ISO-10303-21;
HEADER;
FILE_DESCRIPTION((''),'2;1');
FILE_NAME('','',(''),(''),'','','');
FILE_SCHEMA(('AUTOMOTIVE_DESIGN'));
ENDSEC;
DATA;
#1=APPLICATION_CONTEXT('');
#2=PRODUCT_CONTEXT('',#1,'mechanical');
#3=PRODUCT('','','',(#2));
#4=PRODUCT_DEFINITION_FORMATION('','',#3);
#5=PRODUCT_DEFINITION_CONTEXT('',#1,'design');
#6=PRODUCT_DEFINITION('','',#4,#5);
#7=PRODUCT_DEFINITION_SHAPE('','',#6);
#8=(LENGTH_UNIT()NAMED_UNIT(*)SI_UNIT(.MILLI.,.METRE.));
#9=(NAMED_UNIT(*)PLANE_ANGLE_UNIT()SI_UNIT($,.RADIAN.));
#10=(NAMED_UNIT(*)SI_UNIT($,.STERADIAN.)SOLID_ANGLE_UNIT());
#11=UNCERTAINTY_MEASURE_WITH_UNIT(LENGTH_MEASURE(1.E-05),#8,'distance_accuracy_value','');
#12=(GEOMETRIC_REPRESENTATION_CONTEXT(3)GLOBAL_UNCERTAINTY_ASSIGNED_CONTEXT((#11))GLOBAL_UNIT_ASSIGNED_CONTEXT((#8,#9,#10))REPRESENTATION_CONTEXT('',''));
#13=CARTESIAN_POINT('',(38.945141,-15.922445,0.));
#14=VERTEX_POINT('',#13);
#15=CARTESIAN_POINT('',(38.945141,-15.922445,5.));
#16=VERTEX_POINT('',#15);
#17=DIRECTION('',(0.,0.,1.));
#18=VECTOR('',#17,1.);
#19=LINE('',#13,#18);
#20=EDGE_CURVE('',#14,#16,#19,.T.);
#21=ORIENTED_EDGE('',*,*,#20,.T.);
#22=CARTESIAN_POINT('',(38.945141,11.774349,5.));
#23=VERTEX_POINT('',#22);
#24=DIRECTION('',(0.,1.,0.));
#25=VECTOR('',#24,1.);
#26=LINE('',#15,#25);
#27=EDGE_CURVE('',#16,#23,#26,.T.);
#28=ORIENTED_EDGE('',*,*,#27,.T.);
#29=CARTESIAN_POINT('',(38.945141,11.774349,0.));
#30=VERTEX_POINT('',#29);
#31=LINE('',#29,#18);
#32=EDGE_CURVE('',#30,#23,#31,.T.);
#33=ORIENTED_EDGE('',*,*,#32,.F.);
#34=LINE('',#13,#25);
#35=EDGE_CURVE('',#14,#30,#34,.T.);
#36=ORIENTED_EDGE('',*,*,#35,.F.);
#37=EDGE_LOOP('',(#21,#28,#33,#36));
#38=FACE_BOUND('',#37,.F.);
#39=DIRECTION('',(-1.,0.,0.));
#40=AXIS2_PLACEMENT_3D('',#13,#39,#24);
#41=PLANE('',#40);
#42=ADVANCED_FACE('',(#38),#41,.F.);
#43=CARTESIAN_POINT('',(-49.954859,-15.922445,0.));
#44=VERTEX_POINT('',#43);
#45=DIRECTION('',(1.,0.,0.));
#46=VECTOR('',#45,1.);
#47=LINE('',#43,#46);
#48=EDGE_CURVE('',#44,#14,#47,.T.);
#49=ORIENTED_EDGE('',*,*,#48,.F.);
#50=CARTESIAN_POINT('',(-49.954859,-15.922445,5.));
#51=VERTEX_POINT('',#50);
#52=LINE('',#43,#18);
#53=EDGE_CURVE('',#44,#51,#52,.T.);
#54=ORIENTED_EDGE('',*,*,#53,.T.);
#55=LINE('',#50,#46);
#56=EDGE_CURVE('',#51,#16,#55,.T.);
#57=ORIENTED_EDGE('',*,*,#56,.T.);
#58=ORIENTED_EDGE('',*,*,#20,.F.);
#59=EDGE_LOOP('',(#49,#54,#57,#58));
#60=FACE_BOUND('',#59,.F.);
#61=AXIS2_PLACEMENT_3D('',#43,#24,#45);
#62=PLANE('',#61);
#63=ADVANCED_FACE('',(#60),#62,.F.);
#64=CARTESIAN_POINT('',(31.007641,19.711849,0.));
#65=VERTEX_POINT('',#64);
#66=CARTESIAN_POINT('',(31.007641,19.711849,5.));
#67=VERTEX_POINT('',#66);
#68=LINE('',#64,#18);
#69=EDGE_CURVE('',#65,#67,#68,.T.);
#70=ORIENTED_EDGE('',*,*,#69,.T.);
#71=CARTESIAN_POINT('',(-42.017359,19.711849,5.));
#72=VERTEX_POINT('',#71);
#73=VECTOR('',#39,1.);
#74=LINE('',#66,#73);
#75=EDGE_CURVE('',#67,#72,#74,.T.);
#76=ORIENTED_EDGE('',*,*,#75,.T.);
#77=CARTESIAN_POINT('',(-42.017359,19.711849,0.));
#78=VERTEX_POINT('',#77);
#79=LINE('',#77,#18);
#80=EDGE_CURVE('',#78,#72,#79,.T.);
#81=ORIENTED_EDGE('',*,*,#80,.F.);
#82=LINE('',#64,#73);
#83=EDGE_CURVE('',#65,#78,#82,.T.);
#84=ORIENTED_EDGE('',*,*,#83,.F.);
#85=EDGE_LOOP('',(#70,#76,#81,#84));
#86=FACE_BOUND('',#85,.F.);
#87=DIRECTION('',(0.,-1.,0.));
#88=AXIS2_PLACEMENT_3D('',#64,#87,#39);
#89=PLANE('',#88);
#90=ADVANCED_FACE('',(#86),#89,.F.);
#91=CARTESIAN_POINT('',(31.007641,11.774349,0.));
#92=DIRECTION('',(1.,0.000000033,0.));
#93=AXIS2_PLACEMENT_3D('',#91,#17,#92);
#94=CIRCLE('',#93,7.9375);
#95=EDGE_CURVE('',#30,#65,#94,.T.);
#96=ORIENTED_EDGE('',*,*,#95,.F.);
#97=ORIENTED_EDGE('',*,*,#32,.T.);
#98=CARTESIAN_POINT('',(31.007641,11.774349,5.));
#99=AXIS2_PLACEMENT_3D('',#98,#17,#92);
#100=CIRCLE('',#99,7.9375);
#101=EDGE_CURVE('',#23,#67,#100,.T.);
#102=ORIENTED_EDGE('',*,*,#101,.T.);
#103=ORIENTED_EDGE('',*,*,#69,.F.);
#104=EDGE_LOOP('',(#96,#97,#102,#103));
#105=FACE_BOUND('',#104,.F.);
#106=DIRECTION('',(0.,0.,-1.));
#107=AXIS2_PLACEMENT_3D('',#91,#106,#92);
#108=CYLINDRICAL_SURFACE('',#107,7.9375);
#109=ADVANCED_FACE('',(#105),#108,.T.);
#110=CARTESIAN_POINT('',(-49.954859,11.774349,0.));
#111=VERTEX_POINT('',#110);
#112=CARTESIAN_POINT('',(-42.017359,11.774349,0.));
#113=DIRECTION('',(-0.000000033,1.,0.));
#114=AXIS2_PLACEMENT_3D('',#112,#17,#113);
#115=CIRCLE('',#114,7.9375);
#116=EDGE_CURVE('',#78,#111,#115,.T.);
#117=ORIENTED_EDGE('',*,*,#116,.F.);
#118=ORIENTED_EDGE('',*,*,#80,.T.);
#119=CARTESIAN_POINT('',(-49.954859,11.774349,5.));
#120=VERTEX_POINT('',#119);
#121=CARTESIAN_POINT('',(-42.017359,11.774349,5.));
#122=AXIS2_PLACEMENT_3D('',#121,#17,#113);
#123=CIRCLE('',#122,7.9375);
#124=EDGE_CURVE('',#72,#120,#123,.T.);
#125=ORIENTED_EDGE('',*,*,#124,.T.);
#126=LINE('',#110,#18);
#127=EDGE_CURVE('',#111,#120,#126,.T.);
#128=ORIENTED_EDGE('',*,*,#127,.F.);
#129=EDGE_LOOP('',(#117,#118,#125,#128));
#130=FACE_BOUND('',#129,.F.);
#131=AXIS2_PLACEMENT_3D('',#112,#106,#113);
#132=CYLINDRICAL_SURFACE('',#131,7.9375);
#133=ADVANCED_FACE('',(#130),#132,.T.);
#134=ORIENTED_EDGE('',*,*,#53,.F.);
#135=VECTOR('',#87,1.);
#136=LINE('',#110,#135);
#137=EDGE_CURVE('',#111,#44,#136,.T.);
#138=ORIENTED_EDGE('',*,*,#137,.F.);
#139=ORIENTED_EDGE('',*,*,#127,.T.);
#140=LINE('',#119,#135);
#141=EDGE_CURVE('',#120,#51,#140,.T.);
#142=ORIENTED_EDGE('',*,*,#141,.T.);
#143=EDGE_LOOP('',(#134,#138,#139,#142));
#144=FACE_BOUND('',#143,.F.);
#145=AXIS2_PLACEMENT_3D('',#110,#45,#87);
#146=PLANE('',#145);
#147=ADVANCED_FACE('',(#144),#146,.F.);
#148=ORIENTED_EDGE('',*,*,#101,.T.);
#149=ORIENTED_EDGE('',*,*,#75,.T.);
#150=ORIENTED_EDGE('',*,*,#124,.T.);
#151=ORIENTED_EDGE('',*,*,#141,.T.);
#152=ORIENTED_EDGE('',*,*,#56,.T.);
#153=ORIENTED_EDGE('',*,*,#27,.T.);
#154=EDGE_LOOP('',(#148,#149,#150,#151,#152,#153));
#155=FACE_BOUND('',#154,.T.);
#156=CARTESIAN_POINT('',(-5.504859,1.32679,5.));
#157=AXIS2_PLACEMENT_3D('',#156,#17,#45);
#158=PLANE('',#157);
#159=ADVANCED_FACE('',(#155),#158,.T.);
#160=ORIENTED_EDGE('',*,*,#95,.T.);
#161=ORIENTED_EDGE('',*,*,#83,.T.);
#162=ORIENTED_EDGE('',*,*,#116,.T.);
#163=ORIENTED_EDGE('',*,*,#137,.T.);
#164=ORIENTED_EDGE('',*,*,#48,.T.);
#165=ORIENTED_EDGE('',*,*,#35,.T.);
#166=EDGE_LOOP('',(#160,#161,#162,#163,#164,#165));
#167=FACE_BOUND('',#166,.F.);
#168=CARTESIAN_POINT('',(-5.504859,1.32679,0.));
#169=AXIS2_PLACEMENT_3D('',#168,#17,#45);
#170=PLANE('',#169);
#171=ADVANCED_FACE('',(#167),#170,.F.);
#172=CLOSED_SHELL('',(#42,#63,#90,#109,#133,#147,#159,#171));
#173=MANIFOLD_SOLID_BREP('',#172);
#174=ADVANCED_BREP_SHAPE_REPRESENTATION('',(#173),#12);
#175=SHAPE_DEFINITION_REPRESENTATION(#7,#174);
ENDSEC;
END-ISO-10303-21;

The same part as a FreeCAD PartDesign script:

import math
import FreeCAD as App
import Part
import Sketcher
Q = App.Units.Quantity

doc = App.newDocument("Part")
body = doc.addObject("PartDesign::Body", "Body")

sketch1 = body.newObject("Sketcher::SketchObject", "Sketch")
sketch1.AttachmentSupport = (doc.getObject("XY_Plane"), [""])
sketch1.MapMode = "FlatFace"
sketch1.addGeometry(Part.LineSegment(App.Vector(-49.954859, 11.774349, 0), App.Vector(-49.954859, -15.922445, 0)), False)
sketch1.addGeometry(Part.LineSegment(App.Vector(-49.954859, -15.922445, 0), App.Vector(38.945141, -15.922445, 0)), False)
sketch1.addGeometry(Part.LineSegment(App.Vector(38.945141, -15.922445, 0), App.Vector(38.945141, 11.774349, 0)), False)
sketch1.addGeometry(Part.ArcOfCircle(Part.Circle(App.Vector(31.007641, 11.774349, 0), App.Vector(0, 0, 1), 7.9375), math.radians(0.000002), math.radians(89.999998)), False)
sketch1.addGeometry(Part.LineSegment(App.Vector(31.007641, 19.711849, 0), App.Vector(-42.017359, 19.711849, 0)), False)
sketch1.addGeometry(Part.ArcOfCircle(Part.Circle(App.Vector(-42.017359, 11.774349, 0), App.Vector(0, 0, 1), 7.9375), math.radians(90.000002), math.radians(179.999998)), False)
sketch1.addConstraint(Sketcher.Constraint("Coincident", 0, 2, 1, 1))
sketch1.addConstraint(Sketcher.Constraint("Coincident", 1, 2, 2, 1))
sketch1.addConstraint(Sketcher.Constraint("Tangent", 2, 2, 3, 1))
sketch1.addConstraint(Sketcher.Constraint("Tangent", 3, 2, 4, 1))
sketch1.addConstraint(Sketcher.Constraint("Tangent", 4, 2, 5, 1))
sketch1.addConstraint(Sketcher.Constraint("Tangent", 5, 2, 0, 1))
sketch1.addConstraint(Sketcher.Constraint("Vertical", 0))
sketch1.addConstraint(Sketcher.Constraint("Horizontal", 1))
sketch1.addConstraint(Sketcher.Constraint("Vertical", 2))
sketch1.addConstraint(Sketcher.Constraint("Horizontal", 4))
sketch1.addConstraint(Sketcher.Constraint("Equal", 3, 5))
sketch1.addConstraint(Sketcher.Constraint("DistanceX", 1, 1, 1, 2, Q("3.5 in")))
sketch1.addConstraint(Sketcher.Constraint("Radius", 3, Q("0.3125 in")))
sketch1.addConstraint(Sketcher.Constraint("DistanceY", 0, 2, 0, 1, Q("27.696794 mm")))
sketch1.addConstraint(Sketcher.Constraint("DistanceX", -1, 1, 3, 3, Q("31.007641 mm")))
sketch1.addConstraint(Sketcher.Constraint("DistanceY", -1, 1, 3, 3, Q("11.774349 mm")))
pad1 = body.newObject("PartDesign::Pad", "Pad")
pad1.Profile = sketch1
pad1.Length = 5

doc.recompute()
